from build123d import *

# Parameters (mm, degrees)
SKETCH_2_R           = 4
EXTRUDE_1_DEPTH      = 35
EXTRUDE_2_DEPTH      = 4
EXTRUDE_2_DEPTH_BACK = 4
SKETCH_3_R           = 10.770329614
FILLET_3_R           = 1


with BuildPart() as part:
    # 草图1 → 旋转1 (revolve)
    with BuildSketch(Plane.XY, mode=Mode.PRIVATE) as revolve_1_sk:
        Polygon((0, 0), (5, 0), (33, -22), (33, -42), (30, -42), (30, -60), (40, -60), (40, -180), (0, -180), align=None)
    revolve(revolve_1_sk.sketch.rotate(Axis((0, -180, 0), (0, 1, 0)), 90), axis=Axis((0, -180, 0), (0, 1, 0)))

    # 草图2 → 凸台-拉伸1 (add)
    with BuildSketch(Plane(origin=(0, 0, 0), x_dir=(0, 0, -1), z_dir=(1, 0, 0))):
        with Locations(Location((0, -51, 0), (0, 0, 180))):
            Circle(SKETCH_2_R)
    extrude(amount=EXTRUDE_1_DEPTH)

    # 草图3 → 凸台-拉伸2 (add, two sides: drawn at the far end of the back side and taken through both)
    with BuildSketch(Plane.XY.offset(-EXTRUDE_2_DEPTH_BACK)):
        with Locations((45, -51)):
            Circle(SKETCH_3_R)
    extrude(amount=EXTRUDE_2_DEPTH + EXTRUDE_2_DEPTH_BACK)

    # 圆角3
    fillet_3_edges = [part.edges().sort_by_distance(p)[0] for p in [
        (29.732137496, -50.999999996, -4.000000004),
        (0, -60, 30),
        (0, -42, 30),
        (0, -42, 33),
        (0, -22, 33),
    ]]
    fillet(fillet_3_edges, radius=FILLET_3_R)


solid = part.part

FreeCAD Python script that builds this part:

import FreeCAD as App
import Part
import Sketcher

V = App.Vector
Q = App.Units.Quantity


def edges_at(feature, points):
    """Names of the edges that pass closest to the given points."""
    edges = feature.Shape.Edges
    near = lambda p: min(range(len(edges)), key=lambda i: edges[i].distToShape(Part.Vertex(*p))[0])
    return sorted({f"Edge{near(p) + 1}" for p in points})


def add_polygon(sketch, points):
    """Adds a closed chain of lines whose ends are joined by coincident constraints."""
    first, n = sketch.GeometryCount, len(points)
    for a, b in zip(points, points[1:] + points[:1]):
        sketch.addGeometry(Part.LineSegment(App.Vector(*a, 0), App.Vector(*b, 0)), False)
    for i in range(n):
        sketch.addConstraint(Sketcher.Constraint("Coincident", first + i, 2, first + (i + 1) % n, 1))

doc = App.newDocument("Part")
body = doc.addObject("PartDesign::Body", "Body")

sketch1 = doc.addObject("Sketcher::SketchObject", "Sketch")
body.addObject(sketch1)
sketch1.AttachmentSupport = (doc.XY_Plane, [""])
sketch1.MapMode = "FlatFace"
add_polygon(sketch1, [(5, 0), (0, 0), (0, -180), (40, -180), (40, -60), (30, -60), (30, -42), (33, -42), (33, -22)])
sketch1.addConstraint([
    Sketcher.Constraint("Horizontal", 0),
    Sketcher.Constraint("Vertical", 1),
    Sketcher.Constraint("Horizontal", 2),
    Sketcher.Constraint("Vertical", 3),
    Sketcher.Constraint("Horizontal", 4),
    Sketcher.Constraint("Vertical", 5),
    Sketcher.Constraint("Horizontal", 6),
    Sketcher.Constraint("Vertical", 7),
    Sketcher.Constraint("Coincident", 0, 2, -1, 1),
    Sketcher.Constraint("DistanceX", 0, 2, 0, 1, Q("5 mm")),
    Sketcher.Constraint("DistanceX", 2, 1, 2, 2, Q("40 mm")),
    Sketcher.Constraint("DistanceX", 4, 2, 4, 1, Q("10 mm")),
    Sketcher.Constraint("DistanceX", 6, 1, 6, 2, Q("3 mm")),
    Sketcher.Constraint("DistanceY", 1, 2, 1, 1, Q("180 mm")),
    Sketcher.Constraint("DistanceY", 3, 1, 3, 2, Q("120 mm")),
    Sketcher.Constraint("DistanceY", 5, 1, 5, 2, Q("18 mm")),
    Sketcher.Constraint("DistanceY", 7, 1, 7, 2, Q("20 mm")),
])
revolution = doc.addObject("PartDesign::Revolution", "Revolution")
body.addObject(revolution)
revolution.Profile = sketch1
revolution.ReferenceAxis = (sketch1, ["V_Axis"])
revolution.Angle = 360

sketch2 = doc.addObject("Sketcher::SketchObject", "Sketch001")
body.addObject(sketch2)
sketch2.AttachmentSupport = (doc.YZ_Plane, [""])
sketch2.MapMode = "FlatFace"
sketch2.addGeometry(Part.Circle(V(-51, 0, 0), V(0, 0, 1), 4), False)
sketch2.addConstraint([
    Sketcher.Constraint("PointOnObject", 0, 3, -1),
    Sketcher.Constraint("Diameter", 0, Q("8 mm")),
    Sketcher.Constraint("DistanceX", 0, 3, -1, 1, Q("51 mm")),
])
pad1 = doc.addObject("PartDesign::Pad", "Pad")
body.addObject(pad1)
pad1.Profile = sketch2
pad1.Length = 35

sketch3 = doc.addObject("Sketcher::SketchObject", "Sketch002")
body.addObject(sketch3)
sketch3.AttachmentSupport = (doc.XY_Plane, [""])
sketch3.MapMode = "FlatFace"
sketch3.addGeometry(Part.Circle(V(45, -51, 0), V(0, 0, 1), 11), False)
sketch3.addConstraint([
    Sketcher.Constraint("DistanceX", -1, 1, 0, 3, Q("45 mm")),
    Sketcher.Constraint("DistanceY", 0, 3, -1, 1, Q("51 mm")),
    Sketcher.Constraint("Diameter", 0, Q("21.540659 mm")),
])
pad2 = doc.addObject("PartDesign::Pad", "Pad001")
body.addObject(pad2)
pad2.Profile = sketch3
pad2.Type = "TwoLengths"
pad2.Length = 4
pad2.Length2 = 4
doc.recompute()

fillet = doc.addObject("PartDesign::Fillet", "Fillet")
body.addObject(fillet)
fillet.Base = (pad2, edges_at(pad2, [
    (29.732, -51, -4),
    (0, -60, 30),
    (0, -42, 30),
    (0, -42, 33),
    (0, -22, 33),
]))
fillet.Radius = 1

doc.recompute()
